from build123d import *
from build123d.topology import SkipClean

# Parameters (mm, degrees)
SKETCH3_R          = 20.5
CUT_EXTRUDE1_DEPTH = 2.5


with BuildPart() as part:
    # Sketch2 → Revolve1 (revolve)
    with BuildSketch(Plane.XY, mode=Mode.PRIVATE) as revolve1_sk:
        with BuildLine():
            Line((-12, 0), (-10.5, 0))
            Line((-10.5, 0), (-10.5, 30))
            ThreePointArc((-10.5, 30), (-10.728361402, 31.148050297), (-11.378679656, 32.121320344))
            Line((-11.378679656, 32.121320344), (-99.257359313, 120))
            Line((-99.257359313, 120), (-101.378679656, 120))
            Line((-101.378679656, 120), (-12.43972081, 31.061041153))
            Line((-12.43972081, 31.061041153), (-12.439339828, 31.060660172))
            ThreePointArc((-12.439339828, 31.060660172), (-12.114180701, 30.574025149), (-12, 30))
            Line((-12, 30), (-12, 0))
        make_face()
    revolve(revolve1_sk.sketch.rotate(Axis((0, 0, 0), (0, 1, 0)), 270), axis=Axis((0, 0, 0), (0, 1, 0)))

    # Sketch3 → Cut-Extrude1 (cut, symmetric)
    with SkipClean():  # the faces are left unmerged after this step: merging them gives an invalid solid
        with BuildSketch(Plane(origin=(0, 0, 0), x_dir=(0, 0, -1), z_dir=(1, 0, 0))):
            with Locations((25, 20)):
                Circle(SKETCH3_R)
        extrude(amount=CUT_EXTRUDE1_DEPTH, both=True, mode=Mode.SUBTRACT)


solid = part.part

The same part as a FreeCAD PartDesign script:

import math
import FreeCAD as App
import Part
import Sketcher
Q = App.Units.Quantity

doc = App.newDocument("Part")
params = doc.addObject("Spreadsheet::Sheet", "Params")
for row, (alias, value) in enumerate([
    ("sketch1_radius", "3 mm"),
    ("sketch1_radius2", "1.5 mm"),
    ("sketch1_height", "30 mm"),
    ("revolution_angle", "360 deg"),
    ("sketch2_diameter", "41 mm"),
    ("pocket1_length", "5 mm"),
], start=1):
    params.set(f"A{row}", alias)
    params.set(f"B{row}", "=" + value)
    params.setAlias(f"B{row}", alias)

body = doc.addObject("PartDesign::Body", "Body")

sketch1 = body.newObject("Sketcher::SketchObject", "Sketch")
sketch1.AttachmentSupport = (doc.getObject("XY_Plane"), [""])
sketch1.MapMode = "FlatFace"
sketch1.addGeometry(Part.LineSegment(App.Vector(-12, 0, 0), App.Vector(-10.5, 0, 0)), False)
sketch1.addGeometry(Part.LineSegment(App.Vector(-10.5, 0, 0), App.Vector(-10.5, 30, 0)), False)
sketch1.addGeometry(Part.ArcOfCircle(Part.Circle(App.Vector(-13.5, 30, 0), App.Vector(0, 0, 1), 3), math.radians(0), math.radians(45)), False)
sketch1.addGeometry(Part.LineSegment(App.Vector(-11.37868, 32.12132, 0), App.Vector(-99.257359, 120, 0)), False)
sketch1.addGeometry(Part.LineSegment(App.Vector(-99.257359, 120, 0), App.Vector(-101.37868, 120, 0)), False)
sketch1.addGeometry(Part.LineSegment(App.Vector(-101.37868, 120, 0), App.Vector(-12.439721, 31.061041, 0)), False)
sketch1.addGeometry(Part.LineSegment(App.Vector(-12.439721, 31.061041, 0), App.Vector(-12.43934, 31.06066, 0)), False)
sketch1.addGeometry(Part.ArcOfCircle(Part.Circle(App.Vector(-13.5, 30, 0), App.Vector(0, 0, 1), 1.5), math.radians(0), math.radians(45)), False)
sketch1.addGeometry(Part.LineSegment(App.Vector(-12, 30, 0), App.Vector(-12, 0, 0)), False)
sketch1.addConstraint(Sketcher.Constraint("Coincident", 0, 2, 1, 1))
sketch1.addConstraint(Sketcher.Constraint("Tangent", 1, 2, 2, 1))
sketch1.addConstraint(Sketcher.Constraint("Tangent", 2, 2, 3, 1))
sketch1.addConstraint(Sketcher.Constraint("Coincident", 3, 2, 4, 1))
sketch1.addConstraint(Sketcher.Constraint("Coincident", 4, 2, 5, 1))
sketch1.addConstraint(Sketcher.Constraint("Coincident", 5, 2, 6, 1))
sketch1.addConstraint(Sketcher.Constraint("Tangent", 6, 2, 7, 2))
sketch1.addConstraint(Sketcher.Constraint("Tangent", 7, 1, 8, 1))
sketch1.addConstraint(Sketcher.Constraint("Coincident", 8, 2, 0, 1))
sketch1.addConstraint(Sketcher.Constraint("Horizontal", 0))
sketch1.addConstraint(Sketcher.Constraint("Vertical", 1))
sketch1.addConstraint(Sketcher.Constraint("Horizontal", 4))
sketch1.addConstraint(Sketcher.Constraint("Vertical", 8))
sketch1.addConstraint(Sketcher.Constraint("Coincident", 7, 3, 2, 3))
sketch1.addConstraint(Sketcher.Constraint("PointOnObject", 0, 2, -1))
sketch1.addConstraint(Sketcher.Constraint("Parallel", 3, 5))
sketch1.addConstraint(Sketcher.Constraint("Radius", 2, 3.0))
sketch1.addConstraint(Sketcher.Constraint("Radius", 7, 1.5))
sketch1.addConstraint(Sketcher.Constraint("DistanceY", 1, 1, 1, 2, 30.0))
sketch1.addConstraint(Sketcher.Constraint("Angle", 3, Q("135 deg")))
sketch1.addConstraint(Sketcher.Constraint("DistanceY", -1, 1, 3, 2, 120.0))
sketch1.addConstraint(Sketcher.Constraint("DistanceX", 7, 1, -1, 1, 12.0))
sketch1.addConstraint(Sketcher.Constraint("Distance", 5, 125.778682))
sketch1.addConstraint(Sketcher.Constraint("Distance", 6, 0.000539))
sketch1.setExpression("Constraints[16]", "Params.sketch1_radius")
sketch1.setExpression("Constraints[17]", "Params.sketch1_radius2")
sketch1.setExpression("Constraints[18]", "Params.sketch1_height")
revolution = body.newObject("PartDesign::Revolution", "Revolution")
revolution.Profile = sketch1
revolution.ReferenceAxis = (sketch1, ["V_Axis"])
revolution.setExpression("Angle", "Params.revolution_angle")

sketch2 = body.newObject("Sketcher::SketchObject", "Sketch001")
sketch2.AttachmentSupport = (doc.getObject("YZ_Plane"), [""])
sketch2.MapMode = "FlatFace"
sketch2.addGeometry(Part.Circle(App.Vector(20, -25, 0), App.Vector(0, 0, 1), 20.5), False)
sketch2.addConstraint(Sketcher.Constraint("Diameter", 0, 41.0))
sketch2.addConstraint(Sketcher.Constraint("DistanceX", -1, 1, 0, 3, 20.0))
sketch2.addConstraint(Sketcher.Constraint("DistanceY", 0, 3, -1, 1, 25.0))
sketch2.setExpression("Constraints[0]", "Params.sketch2_diameter")
pocket1 = body.newObject("PartDesign::Pocket", "Pocket")
pocket1.Profile = sketch2
pocket1.setExpression("Length", "Params.pocket1_length")
pocket1.Midplane = True

doc.recompute()
